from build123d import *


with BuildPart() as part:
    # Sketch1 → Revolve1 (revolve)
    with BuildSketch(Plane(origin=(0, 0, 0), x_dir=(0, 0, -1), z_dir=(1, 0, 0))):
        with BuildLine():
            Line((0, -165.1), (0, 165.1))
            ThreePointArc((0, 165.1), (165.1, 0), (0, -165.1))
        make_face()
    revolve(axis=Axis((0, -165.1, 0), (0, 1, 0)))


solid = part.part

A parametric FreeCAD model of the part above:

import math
import FreeCAD as App
import Part
import Sketcher
from FreeCAD import Vector
Q = App.Units.Quantity

doc = App.newDocument("Part")
body = doc.addObject("PartDesign::Body", "Body")

# Sketch on YZ plane
sketch1 = body.newObject("Sketcher::SketchObject", "Sketch")
sketch1.AttachmentSupport = (doc.getObject("YZ_Plane"), [""])
sketch1.MapMode = "FlatFace"
sketch1.addGeometry([
    Part.LineSegment(Vector(165.1, 0, 0), Vector(-165.1, 0, 0)),
    Part.ArcOfCircle(Part.Circle(Vector(0, 0, 0), Vector(0, 0, 1), 165.1), math.radians(180), math.radians(360)),
], False)
sketch1.addConstraint([
    Sketcher.Constraint("Coincident", 0, 1, 1, 2),
    Sketcher.Constraint("Coincident", 1, 1, 0, 2),
    Sketcher.Constraint("Horizontal", 0),
    Sketcher.Constraint("Coincident", 1, 3, -1, 1),
    Sketcher.Constraint("PointOnObject", 0, 1, -1),
    Sketcher.Constraint("Radius", 1, Q("6.5 in")),
])
revolution = body.newObject("PartDesign::Revolution", "Revolution")
revolution.Profile = sketch1
revolution.ReferenceAxis = (sketch1, ["H_Axis"])
revolution.Angle = 360

doc.recompute()
